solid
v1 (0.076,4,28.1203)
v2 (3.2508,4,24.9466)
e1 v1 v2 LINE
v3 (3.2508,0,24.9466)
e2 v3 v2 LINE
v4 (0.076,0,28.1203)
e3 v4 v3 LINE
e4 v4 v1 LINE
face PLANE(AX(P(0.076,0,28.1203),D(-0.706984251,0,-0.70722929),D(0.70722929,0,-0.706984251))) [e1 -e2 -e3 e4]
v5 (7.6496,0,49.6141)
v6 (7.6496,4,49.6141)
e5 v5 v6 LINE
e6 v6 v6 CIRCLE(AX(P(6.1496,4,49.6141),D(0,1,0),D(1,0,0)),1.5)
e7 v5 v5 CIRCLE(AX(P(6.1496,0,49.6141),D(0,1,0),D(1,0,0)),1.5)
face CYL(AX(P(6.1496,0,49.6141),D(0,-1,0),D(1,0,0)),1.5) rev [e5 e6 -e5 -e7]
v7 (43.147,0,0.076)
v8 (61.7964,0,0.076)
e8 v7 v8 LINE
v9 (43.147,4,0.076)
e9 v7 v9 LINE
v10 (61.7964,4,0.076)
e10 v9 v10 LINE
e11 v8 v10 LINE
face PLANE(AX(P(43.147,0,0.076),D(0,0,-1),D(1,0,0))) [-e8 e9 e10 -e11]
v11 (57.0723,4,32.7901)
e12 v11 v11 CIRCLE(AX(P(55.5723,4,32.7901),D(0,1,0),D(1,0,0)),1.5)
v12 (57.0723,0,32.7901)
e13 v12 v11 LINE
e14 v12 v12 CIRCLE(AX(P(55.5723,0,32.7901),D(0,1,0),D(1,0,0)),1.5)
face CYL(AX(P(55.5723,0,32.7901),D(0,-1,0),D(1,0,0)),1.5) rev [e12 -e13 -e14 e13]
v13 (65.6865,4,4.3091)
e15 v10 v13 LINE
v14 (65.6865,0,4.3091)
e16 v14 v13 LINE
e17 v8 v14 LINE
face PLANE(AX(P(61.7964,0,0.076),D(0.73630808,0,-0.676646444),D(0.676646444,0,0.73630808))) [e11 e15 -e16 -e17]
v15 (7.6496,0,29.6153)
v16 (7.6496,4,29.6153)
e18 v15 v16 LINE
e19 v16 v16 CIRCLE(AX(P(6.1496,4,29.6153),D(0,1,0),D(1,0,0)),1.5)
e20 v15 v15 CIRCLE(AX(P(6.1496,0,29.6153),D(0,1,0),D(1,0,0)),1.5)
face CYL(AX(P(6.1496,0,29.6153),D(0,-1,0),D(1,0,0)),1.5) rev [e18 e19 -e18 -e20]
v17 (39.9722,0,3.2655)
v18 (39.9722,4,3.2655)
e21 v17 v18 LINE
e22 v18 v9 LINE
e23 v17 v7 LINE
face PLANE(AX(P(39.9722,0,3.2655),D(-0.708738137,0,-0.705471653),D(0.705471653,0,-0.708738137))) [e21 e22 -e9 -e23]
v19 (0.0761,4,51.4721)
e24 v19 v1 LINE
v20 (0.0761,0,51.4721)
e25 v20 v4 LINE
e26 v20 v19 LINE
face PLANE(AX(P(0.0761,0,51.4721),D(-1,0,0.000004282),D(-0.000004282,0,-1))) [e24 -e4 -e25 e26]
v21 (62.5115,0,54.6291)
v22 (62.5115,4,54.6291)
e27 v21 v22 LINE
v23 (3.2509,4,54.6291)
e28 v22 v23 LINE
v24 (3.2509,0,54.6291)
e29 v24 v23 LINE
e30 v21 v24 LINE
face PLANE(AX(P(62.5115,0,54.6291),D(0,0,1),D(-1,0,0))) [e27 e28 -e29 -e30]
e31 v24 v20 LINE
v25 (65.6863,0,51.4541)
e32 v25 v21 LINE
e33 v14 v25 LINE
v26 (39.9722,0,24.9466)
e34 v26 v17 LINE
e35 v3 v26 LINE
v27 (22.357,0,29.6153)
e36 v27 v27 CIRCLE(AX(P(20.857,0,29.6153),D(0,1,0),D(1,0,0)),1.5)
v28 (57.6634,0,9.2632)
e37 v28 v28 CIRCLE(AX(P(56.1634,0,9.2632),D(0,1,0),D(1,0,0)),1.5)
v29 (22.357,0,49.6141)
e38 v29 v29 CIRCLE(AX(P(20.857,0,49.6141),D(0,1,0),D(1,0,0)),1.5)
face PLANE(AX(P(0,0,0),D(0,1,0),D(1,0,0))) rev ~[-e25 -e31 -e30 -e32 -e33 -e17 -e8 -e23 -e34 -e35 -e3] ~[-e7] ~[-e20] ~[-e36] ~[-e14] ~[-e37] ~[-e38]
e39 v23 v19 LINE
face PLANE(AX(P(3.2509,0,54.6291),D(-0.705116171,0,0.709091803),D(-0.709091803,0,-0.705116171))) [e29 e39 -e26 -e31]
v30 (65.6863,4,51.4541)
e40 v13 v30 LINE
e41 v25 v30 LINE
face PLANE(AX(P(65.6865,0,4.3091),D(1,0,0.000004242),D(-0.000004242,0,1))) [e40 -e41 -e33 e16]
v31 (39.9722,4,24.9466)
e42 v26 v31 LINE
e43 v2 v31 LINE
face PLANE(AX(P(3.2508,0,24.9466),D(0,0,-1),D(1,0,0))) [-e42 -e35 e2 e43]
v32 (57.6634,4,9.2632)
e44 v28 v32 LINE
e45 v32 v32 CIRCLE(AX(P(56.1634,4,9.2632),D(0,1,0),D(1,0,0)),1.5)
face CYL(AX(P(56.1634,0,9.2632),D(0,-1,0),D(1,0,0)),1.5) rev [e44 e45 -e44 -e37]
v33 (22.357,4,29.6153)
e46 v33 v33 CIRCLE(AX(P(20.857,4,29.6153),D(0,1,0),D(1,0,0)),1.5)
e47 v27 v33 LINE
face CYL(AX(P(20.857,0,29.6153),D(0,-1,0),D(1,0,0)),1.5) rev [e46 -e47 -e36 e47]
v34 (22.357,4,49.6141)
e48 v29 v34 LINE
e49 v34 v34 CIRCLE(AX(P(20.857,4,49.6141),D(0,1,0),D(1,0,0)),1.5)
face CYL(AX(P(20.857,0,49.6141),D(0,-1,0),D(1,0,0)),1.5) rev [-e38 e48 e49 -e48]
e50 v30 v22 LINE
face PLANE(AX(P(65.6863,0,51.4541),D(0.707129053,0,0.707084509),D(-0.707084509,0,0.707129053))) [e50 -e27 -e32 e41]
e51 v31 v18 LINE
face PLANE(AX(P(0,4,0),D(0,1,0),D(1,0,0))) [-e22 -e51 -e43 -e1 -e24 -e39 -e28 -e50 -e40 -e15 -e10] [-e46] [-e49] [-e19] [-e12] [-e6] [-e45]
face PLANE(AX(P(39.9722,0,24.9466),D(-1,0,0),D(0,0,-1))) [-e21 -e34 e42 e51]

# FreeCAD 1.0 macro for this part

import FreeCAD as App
import Part
import Sketcher

V = App.Vector
Q = App.Units.Quantity

doc = App.newDocument("Part")
body = doc.addObject("PartDesign::Body", "Body")

# Sketch on XZ plane
sketch1 = body.newObject("Sketcher::SketchObject", "Sketch")
sketch1.AttachmentSupport = (doc.getObject("XZ_Plane"), [""])
sketch1.MapMode = "FlatFace"
sketch1.addGeometry(Part.LineSegment(V(3.2508, 24.9466, 0), V(0.076, 28.1203, 0)), False)
sketch1.addGeometry(Part.LineSegment(V(0.076, 28.1203, 0), V(0.0761, 51.4721, 0)), False)
sketch1.addGeometry(Part.LineSegment(V(0.0761, 51.4721, 0), V(3.2509, 54.6291, 0)), False)
sketch1.addGeometry(Part.LineSegment(V(3.2509, 54.6291, 0), V(62.5115, 54.6291, 0)), False)
sketch1.addGeometry(Part.LineSegment(V(62.5115, 54.6291, 0), V(65.6863, 51.4541, 0)), False)
sketch1.addGeometry(Part.LineSegment(V(65.6863, 51.4541, 0), V(65.6865, 4.3091, 0)), False)
sketch1.addGeometry(Part.LineSegment(V(65.6865, 4.3091, 0), V(61.7964, 0.076, 0)), False)
sketch1.addGeometry(Part.LineSegment(V(61.7964, 0.076, 0), V(43.147, 0.076, 0)), False)
sketch1.addGeometry(Part.LineSegment(V(43.147, 0.076, 0), V(39.9722, 3.2655, 0)), False)
sketch1.addGeometry(Part.LineSegment(V(39.9722, 3.2655, 0), V(39.9722, 24.9466, 0)), False)
sketch1.addGeometry(Part.LineSegment(V(39.9722, 24.9466, 0), V(3.2508, 24.9466, 0)), False)
sketch1.addGeometry(Part.Circle(V(6.1496, 49.6141, 0), V(0, 0, 1), 1.5), False)
sketch1.addGeometry(Part.Circle(V(20.857, 49.6141, 0), V(0, 0, 1), 1.5), False)
sketch1.addGeometry(Part.Circle(V(6.1496, 29.6153, 0), V(0, 0, 1), 1.5), False)
sketch1.addGeometry(Part.Circle(V(20.857, 29.6153, 0), V(0, 0, 1), 1.5), False)
sketch1.addGeometry(Part.Circle(V(55.5723, 32.7901, 0), V(0, 0, 1), 1.5), False)
sketch1.addGeometry(Part.Circle(V(56.1634, 9.2632, 0), V(0, 0, 1), 1.5), False)
sketch1.addConstraint(Sketcher.Constraint("Coincident", 0, 2, 1, 1))
sketch1.addConstraint(Sketcher.Constraint("Coincident", 1, 2, 2, 1))
sketch1.addConstraint(Sketcher.Constraint("Coincident", 2, 2, 3, 1))
sketch1.addConstraint(Sketcher.Constraint("Coincident", 3, 2, 4, 1))
sketch1.addConstraint(Sketcher.Constraint("Coincident", 4, 2, 5, 1))
sketch1.addConstraint(Sketcher.Constraint("Coincident", 5, 2, 6, 1))
sketch1.addConstraint(Sketcher.Constraint("Coincident", 6, 2, 7, 1))
sketch1.addConstraint(Sketcher.Constraint("Coincident", 7, 2, 8, 1))
sketch1.addConstraint(Sketcher.Constraint("Coincident", 8, 2, 9, 1))
sketch1.addConstraint(Sketcher.Constraint("Coincident", 9, 2, 10, 1))
sketch1.addConstraint(Sketcher.Constraint("Coincident", 10, 2, 0, 1))
sketch1.addConstraint(Sketcher.Constraint("Vertical", 1))
sketch1.addConstraint(Sketcher.Constraint("Horizontal", 3))
sketch1.addConstraint(Sketcher.Constraint("Vertical", 5))
sketch1.addConstraint(Sketcher.Constraint("Horizontal", 7))
sketch1.addConstraint(Sketcher.Constraint("Vertical", 9))
sketch1.addConstraint(Sketcher.Constraint("Horizontal", 10))
sketch1.addConstraint(Sketcher.Constraint("Equal", 11, 12))
sketch1.addConstraint(Sketcher.Constraint("Equal", 12, 13))
sketch1.addConstraint(Sketcher.Constraint("Equal", 13, 14))
sketch1.addConstraint(Sketcher.Constraint("Equal", 14, 15))
sketch1.addConstraint(Sketcher.Constraint("Equal", 15, 16))
sketch1.addConstraint(Sketcher.Constraint("Parallel", 0, 4))
sketch1.addConstraint(Sketcher.Constraint("Horizontal", 11, 3, 12, 3))
sketch1.addConstraint(Sketcher.Constraint("Horizontal", 13, 3, 14, 3))
sketch1.addConstraint(Sketcher.Constraint("Vertical", 11, 3, 13, 3))
sketch1.addConstraint(Sketcher.Constraint("Vertical", 12, 3, 14, 3))
sketch1.addConstraint(Sketcher.Constraint("Vertical", 2, 2, 10, 2))
sketch1.addConstraint(Sketcher.Constraint("Diameter", 11, Q("3 mm")))
sketch1.addConstraint(Sketcher.Constraint("Angle", 0, Q("135.01 deg")))
sketch1.addConstraint(Sketcher.Constraint("Angle", 2, Q("44.839 deg")))
sketch1.addConstraint(Sketcher.Constraint("DistanceX", 9, 2, 15, 3, Q("15.6 mm")))
sketch1.addConstraint(Sketcher.Constraint("Distance", 4, Q("4.49 mm")))
sketch1.addConstraint(Sketcher.Constraint("DistanceY", 5, 2, 5, 1, Q("47.145 mm")))
sketch1.addConstraint(Sketcher.Constraint("DistanceY", 9, 1, 9, 2, Q("21.681 mm")))
sketch1.addConstraint(Sketcher.Constraint("DistanceY", -1, 1, 15, 3, Q("32.79 mm")))
sketch1.addConstraint(Sketcher.Constraint("DistanceY", 12, 3, 4, 2, Q("1.84 mm")))
sketch1.addConstraint(Sketcher.Constraint("DistanceX", 6, 2, 5, 2, Q("3.89 mm")))
sketch1.addConstraint(Sketcher.Constraint("DistanceX", 14, 3, 7, 2, Q("22.29 mm")))
sketch1.addConstraint(Sketcher.Constraint("Distance", 0, Q("4.489 mm")))
sketch1.addConstraint(Sketcher.Constraint("Distance", 6, Q("5.749 mm")))
sketch1.addConstraint(Sketcher.Constraint("DistanceX", 3, 1, 3, 2, Q("59.2606 mm")))
sketch1.addConstraint(Sketcher.Constraint("DistanceX", 7, 2, 7, 1, Q("18.6494 mm")))
sketch1.addConstraint(Sketcher.Constraint("DistanceX", 10, 2, 10, 1, Q("36.7214 mm")))
sketch1.addConstraint(Sketcher.Constraint("DistanceY", 1, 1, 1, 2, Q("23.3518 mm")))
sketch1.addConstraint(Sketcher.Constraint("DistanceY", -1, 1, 11, 3, Q("49.614 mm")))
sketch1.addConstraint(Sketcher.Constraint("DistanceX", -1, 1, 12, 3, Q("20.857 mm")))
sketch1.addConstraint(Sketcher.Constraint("DistanceX", 15, 3, 16, 3, Q("0.591 mm")))
sketch1.addConstraint(Sketcher.Constraint("DistanceY", 16, 3, 15, 3, Q("23.527 mm")))
sketch1.addConstraint(Sketcher.Constraint("DistanceY", 16, 3, 14, 3, Q("20.352 mm")))
sketch1.addConstraint(Sketcher.Constraint("DistanceX", 11, 3, 3, 2, Q("56.362 mm")))
pad1 = body.newObject("PartDesign::Pad", "Pad")
pad1.Profile = sketch1
pad1.Length = 4
pad1.Reversed = True

doc.recompute()
